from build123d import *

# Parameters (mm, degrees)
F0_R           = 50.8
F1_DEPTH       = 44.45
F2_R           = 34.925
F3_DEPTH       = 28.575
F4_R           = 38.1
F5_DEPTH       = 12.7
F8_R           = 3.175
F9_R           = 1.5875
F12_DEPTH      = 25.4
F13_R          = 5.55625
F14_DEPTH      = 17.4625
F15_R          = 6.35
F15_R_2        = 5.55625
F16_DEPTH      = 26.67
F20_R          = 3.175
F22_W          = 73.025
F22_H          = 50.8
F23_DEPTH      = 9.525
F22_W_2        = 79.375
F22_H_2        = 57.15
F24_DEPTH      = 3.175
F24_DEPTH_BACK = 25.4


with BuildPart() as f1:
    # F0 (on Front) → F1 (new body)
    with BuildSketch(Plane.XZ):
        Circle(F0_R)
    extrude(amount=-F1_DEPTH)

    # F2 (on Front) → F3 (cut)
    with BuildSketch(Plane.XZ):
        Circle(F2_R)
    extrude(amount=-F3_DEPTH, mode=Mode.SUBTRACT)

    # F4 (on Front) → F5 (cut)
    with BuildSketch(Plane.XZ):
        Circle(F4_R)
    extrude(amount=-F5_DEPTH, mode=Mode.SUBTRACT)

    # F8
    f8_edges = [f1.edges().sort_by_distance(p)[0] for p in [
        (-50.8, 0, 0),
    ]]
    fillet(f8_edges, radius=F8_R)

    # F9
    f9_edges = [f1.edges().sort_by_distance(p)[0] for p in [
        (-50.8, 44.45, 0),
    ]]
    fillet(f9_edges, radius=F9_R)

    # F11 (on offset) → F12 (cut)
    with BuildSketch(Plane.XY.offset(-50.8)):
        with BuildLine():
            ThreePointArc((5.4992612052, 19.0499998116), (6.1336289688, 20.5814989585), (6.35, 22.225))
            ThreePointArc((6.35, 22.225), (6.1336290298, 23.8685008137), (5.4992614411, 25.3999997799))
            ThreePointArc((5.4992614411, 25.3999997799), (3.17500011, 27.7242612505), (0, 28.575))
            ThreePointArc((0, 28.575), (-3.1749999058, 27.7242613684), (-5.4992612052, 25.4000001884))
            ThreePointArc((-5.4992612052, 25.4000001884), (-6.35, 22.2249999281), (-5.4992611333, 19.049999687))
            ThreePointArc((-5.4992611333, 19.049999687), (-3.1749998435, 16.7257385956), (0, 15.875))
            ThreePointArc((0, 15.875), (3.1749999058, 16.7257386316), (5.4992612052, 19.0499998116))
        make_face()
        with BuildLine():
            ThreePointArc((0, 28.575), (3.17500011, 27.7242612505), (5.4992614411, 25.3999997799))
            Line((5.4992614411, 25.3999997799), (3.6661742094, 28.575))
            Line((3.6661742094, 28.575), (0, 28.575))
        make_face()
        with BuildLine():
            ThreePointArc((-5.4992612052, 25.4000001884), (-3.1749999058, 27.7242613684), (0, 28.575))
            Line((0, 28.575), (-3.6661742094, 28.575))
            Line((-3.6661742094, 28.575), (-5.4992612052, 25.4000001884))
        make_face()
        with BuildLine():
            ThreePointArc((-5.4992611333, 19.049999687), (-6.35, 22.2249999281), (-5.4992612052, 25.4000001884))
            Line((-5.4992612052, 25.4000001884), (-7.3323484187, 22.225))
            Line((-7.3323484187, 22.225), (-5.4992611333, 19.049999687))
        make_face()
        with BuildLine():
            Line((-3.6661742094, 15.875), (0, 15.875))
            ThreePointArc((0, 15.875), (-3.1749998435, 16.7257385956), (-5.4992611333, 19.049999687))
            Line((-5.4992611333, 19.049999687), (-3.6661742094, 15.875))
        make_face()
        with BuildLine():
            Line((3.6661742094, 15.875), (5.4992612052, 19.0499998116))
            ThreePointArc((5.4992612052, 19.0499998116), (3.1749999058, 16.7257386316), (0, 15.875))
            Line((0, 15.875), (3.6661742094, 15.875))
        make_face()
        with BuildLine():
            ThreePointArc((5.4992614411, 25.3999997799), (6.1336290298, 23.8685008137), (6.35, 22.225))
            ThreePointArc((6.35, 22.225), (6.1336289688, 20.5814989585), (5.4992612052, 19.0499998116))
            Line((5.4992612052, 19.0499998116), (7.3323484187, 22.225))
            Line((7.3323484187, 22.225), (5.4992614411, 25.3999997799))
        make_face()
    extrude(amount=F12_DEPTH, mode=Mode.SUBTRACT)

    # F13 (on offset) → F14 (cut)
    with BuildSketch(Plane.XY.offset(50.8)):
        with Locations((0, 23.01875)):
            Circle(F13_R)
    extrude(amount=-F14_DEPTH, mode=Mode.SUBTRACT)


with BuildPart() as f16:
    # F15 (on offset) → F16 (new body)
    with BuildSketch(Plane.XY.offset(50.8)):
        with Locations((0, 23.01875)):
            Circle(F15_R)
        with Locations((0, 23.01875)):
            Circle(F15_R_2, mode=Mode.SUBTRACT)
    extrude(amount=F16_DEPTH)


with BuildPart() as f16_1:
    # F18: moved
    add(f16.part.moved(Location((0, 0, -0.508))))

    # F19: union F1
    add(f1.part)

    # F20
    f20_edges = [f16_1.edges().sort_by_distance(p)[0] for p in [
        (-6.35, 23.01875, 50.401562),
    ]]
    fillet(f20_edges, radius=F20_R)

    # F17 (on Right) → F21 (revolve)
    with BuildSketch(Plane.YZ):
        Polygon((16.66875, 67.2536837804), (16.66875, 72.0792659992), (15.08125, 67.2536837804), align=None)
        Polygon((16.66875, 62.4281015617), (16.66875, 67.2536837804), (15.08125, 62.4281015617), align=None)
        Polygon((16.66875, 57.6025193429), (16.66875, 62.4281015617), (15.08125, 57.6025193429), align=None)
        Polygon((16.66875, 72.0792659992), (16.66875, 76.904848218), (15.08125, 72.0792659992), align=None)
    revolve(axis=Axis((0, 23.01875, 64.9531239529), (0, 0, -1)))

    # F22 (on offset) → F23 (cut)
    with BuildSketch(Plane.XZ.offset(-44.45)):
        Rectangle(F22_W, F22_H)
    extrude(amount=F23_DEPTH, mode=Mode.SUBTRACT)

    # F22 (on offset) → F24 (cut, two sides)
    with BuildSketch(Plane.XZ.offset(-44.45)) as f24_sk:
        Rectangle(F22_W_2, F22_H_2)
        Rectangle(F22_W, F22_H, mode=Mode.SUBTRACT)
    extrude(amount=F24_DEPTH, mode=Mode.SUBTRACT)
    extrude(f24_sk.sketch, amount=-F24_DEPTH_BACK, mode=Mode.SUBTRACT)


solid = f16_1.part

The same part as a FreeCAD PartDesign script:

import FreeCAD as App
import Part
import Sketcher
Q = App.Units.Quantity


def edges_at(feature, points):
    """Names of the edges that pass closest to the given points."""
    edges = feature.Shape.Edges
    near = lambda p: min(range(len(edges)), key=lambda i: edges[i].distToShape(Part.Vertex(*p))[0])
    return sorted({f"Edge{near(p) + 1}" for p in points})


def add_polygon(sketch, points):
    """Adds a closed chain of lines whose ends are joined by coincident constraints."""
    first, n = sketch.GeometryCount, len(points)
    for a, b in zip(points, points[1:] + points[:1]):
        sketch.addGeometry(Part.LineSegment(App.Vector(*a, 0), App.Vector(*b, 0)), False)
    for i in range(n):
        sketch.addConstraint(Sketcher.Constraint("Coincident", first + i, 2, first + (i + 1) % n, 1))

doc = App.newDocument("Part")
params = doc.addObject("Spreadsheet::Sheet", "Params")
for row, (alias, value) in enumerate([
    ("sketch1_diameter", "4 in"),
    ("pad1_length", "1.75 in"),
    ("sketch2_diameter", "2.75 in"),
    ("pocket1_length", "1.125 in"),
    ("sketch3_diameter", "3 in"),
    ("pocket2_length", "0.5 in"),
    ("fillet_radius", "0.125 in"),
    ("fillet2_radius", "0.0625 in"),
    ("pocket3_length", "1 in"),
    ("sketch5_diameter", "0.4375 in"),
    ("pocket4_length", "0.6875 in"),
    ("sketch6_diameter", "0.5 in"),
    ("sketch6_diameter2", "0.4375 in"),
    ("pad2_length", "1.05 in"),
    ("fillet3_radius", "0.125 in"),
    ("sketch7_length", "0.2 in"),
    ("sketch7_width", "0.0625 in"),
    ("revolution_angle", "360 deg"),
    ("sketch8_height", "2 in"),
    ("sketch8_width", "2.875 in"),
    ("pocket5_length", "0.375 in"),
    ("sketch9_height", "2 in"),
    ("sketch9_height2", "2.25 in"),
    ("sketch9_width", "3.125 in"),
    ("pocket6_length", "0.125 in"),
    ("pocket6_length2", "1 in"),
], start=1):
    params.set(f"A{row}", alias)
    params.set(f"B{row}", "=" + value)
    params.setAlias(f"B{row}", alias)

body = doc.addObject("PartDesign::Body", "Body")

sketch1 = body.newObject("Sketcher::SketchObject", "Sketch")
sketch1.AttachmentSupport = (doc.getObject("XZ_Plane"), [""])
sketch1.MapMode = "FlatFace"
sketch1.addGeometry(Part.Circle(App.Vector(0, 0, 0), App.Vector(0, 0, 1), 51), False)
sketch1.addConstraint(Sketcher.Constraint("Coincident", 0, 3, -1, 1))
sketch1.addConstraint(Sketcher.Constraint("Diameter", 0, Q("4 in")))
sketch1.setExpression("Constraints[1]", "Params.sketch1_diameter")
pad1 = body.newObject("PartDesign::Pad", "Pad")
pad1.Profile = sketch1
pad1.setExpression("Length", "Params.pad1_length")
pad1.Reversed = True

sketch2 = body.newObject("Sketcher::SketchObject", "Sketch001")
sketch2.AttachmentSupport = (doc.getObject("XZ_Plane"), [""])
sketch2.MapMode = "FlatFace"
sketch2.addGeometry(Part.Circle(App.Vector(0, 0, 0), App.Vector(0, 0, 1), 35), False)
sketch2.addConstraint(Sketcher.Constraint("Coincident", 0, 3, -1, 1))
sketch2.addConstraint(Sketcher.Constraint("Diameter", 0, Q("2.75 in")))
sketch2.setExpression("Constraints[1]", "Params.sketch2_diameter")
pocket1 = body.newObject("PartDesign::Pocket", "Pocket")
pocket1.Profile = sketch2
pocket1.setExpression("Length", "Params.pocket1_length")

sketch3 = body.newObject("Sketcher::SketchObject", "Sketch002")
sketch3.AttachmentSupport = (doc.getObject("XZ_Plane"), [""])
sketch3.MapMode = "FlatFace"
sketch3.addGeometry(Part.Circle(App.Vector(0, 0, 0), App.Vector(0, 0, 1), 38), False)
sketch3.addConstraint(Sketcher.Constraint("Coincident", 0, 3, -1, 1))
sketch3.addConstraint(Sketcher.Constraint("Diameter", 0, Q("3 in")))
sketch3.setExpression("Constraints[1]", "Params.sketch3_diameter")
pocket2 = body.newObject("PartDesign::Pocket", "Pocket001")
pocket2.Profile = sketch3
pocket2.setExpression("Length", "Params.pocket2_length")
doc.recompute()

fillet = body.newObject("PartDesign::Fillet", "Fillet")
fillet.Base = (pocket2, edges_at(pocket2, [(-50.8, 0, 0)]))
fillet.setExpression("Radius", "Params.fillet_radius")
doc.recompute()

fillet2 = body.newObject("PartDesign::Fillet", "Fillet001")
fillet2.Base = (fillet, edges_at(fillet, [(-50.8, 44.45, 0)]))
fillet2.setExpression("Radius", "Params.fillet2_radius")

sketch4 = body.newObject("Sketcher::SketchObject", "Sketch003")
sketch4.AttachmentSupport = (doc.getObject("XY_Plane"), [""])
sketch4.MapMode = "FlatFace"
sketch4.AttachmentOffset = App.Placement(App.Vector(0, 0, -2 * 25.4), App.Rotation())
add_polygon(sketch4, [(5.5, 25.4), (3.7, 28.6), (-3.7, 28.6), (-5.5, 25.4), (-7.3, 22.2), (-5.5, 19), (-3.7, 15.9), (3.7, 15.9), (5.5, 19), (7.3, 22.2)])
sketch4.addConstraint(Sketcher.Constraint("Horizontal", 1))
sketch4.addConstraint(Sketcher.Constraint("Horizontal", 6))
sketch4.addConstraint(Sketcher.Constraint("Symmetric", 4, 2, 7, 2, -2))
sketch4.addConstraint(Sketcher.Constraint("Symmetric", 3, 2, 8, 2, -2))
sketch4.addConstraint(Sketcher.Constraint("Symmetric", 2, 2, 9, 2, -2))
sketch4.addConstraint(Sketcher.Constraint("Parallel", 2, 3))
sketch4.addConstraint(Sketcher.Constraint("Parallel", 0, 4))
sketch4.addConstraint(Sketcher.Constraint("Parallel", 4, 5))
sketch4.addConstraint(Sketcher.Constraint("Parallel", 3, 7))
sketch4.addConstraint(Sketcher.Constraint("Parallel", 7, 8))
sketch4.addConstraint(Sketcher.Constraint("Vertical", 2, 2, 4, 2))
sketch4.addConstraint(Sketcher.Constraint("Vertical", 1, 2, 5, 2))
sketch4.addConstraint(Sketcher.Constraint("Equal", 2, 3))
sketch4.addConstraint(Sketcher.Constraint("DistanceY", -1, 1, 2, 2, Q("1 in")))
sketch4.addConstraint(Sketcher.Constraint("Angle", 0, Q("120 deg")))
sketch4.addConstraint(Sketcher.Constraint("DistanceY", 5, 2, 1, 2, Q("0.5 in")))
sketch4.addConstraint(Sketcher.Constraint("DistanceX", 1, 2, 1, 1, 7.332348))
pocket3 = body.newObject("PartDesign::Pocket", "Pocket002")
pocket3.Profile = sketch4
pocket3.setExpression("Length", "Params.pocket3_length")
pocket3.Reversed = True

sketch5 = body.newObject("Sketcher::SketchObject", "Sketch004")
sketch5.AttachmentSupport = (doc.getObject("XY_Plane"), [""])
sketch5.MapMode = "FlatFace"
sketch5.AttachmentOffset = App.Placement(App.Vector(0, 0, 2 * 25.4), App.Rotation())
sketch5.addGeometry(Part.Circle(App.Vector(0, 23, 0), App.Vector(0, 0, 1), 6), False)
sketch5.addConstraint(Sketcher.Constraint("PointOnObject", 0, 3, -2))
sketch5.addConstraint(Sketcher.Constraint("Diameter", 0, Q("0.4375 in")))
sketch5.addConstraint(Sketcher.Constraint("DistanceY", -1, 1, 0, 3, Q("0.90625 in")))
sketch5.setExpression("Constraints[1]", "Params.sketch5_diameter")
pocket4 = body.newObject("PartDesign::Pocket", "Pocket003")
pocket4.Profile = sketch5
pocket4.setExpression("Length", "Params.pocket4_length")
body2 = doc.addObject("PartDesign::Body", "Body001")

sketch6 = body2.newObject("Sketcher::SketchObject", "Sketch005")
sketch6.AttachmentSupport = (doc.getObject("XY_Plane001"), [""])
sketch6.MapMode = "FlatFace"
sketch6.AttachmentOffset = App.Placement(App.Vector(0, 0, 2 * 25.4), App.Rotation())
sketch6.addGeometry(Part.Circle(App.Vector(0, 23, 0), App.Vector(0, 0, 1), 6), False)
sketch6.addGeometry(Part.Circle(App.Vector(0, 23, 0), App.Vector(0, 0, 1), 6), False)
sketch6.addConstraint(Sketcher.Constraint("Coincident", 1, 3, 0, 3))
sketch6.addConstraint(Sketcher.Constraint("PointOnObject", 0, 3, -2))
sketch6.addConstraint(Sketcher.Constraint("Diameter", 0, Q("0.5 in")))
sketch6.addConstraint(Sketcher.Constraint("Diameter", 1, Q("0.4375 in")))
sketch6.addConstraint(Sketcher.Constraint("DistanceY", -1, 1, 0, 3, Q("0.90625 in")))
sketch6.setExpression("Constraints[2]", "Params.sketch6_diameter")
sketch6.setExpression("Constraints[3]", "Params.sketch6_diameter2")
pad2 = body2.newObject("PartDesign::Pad", "Pad001")
pad2.Profile = sketch6
pad2.setExpression("Length", "Params.pad2_length")
body3 = doc.addObject("PartDesign::Body", "Body002")
doc.recompute()

body2.Placement = App.Placement(App.Vector(0, 0, -0.508), App.Rotation(App.Vector(0, 0, 1), 0))
boolean = body3.newObject("PartDesign::Boolean", "Boolean")
boolean.Type = "Fuse"
boolean.addObjects([body2])
doc.recompute()

boolean2 = body3.newObject("PartDesign::Boolean", "Boolean001")
boolean2.Type = "Fuse"
boolean2.addObjects([body])
doc.recompute()

fillet3 = body3.newObject("PartDesign::Fillet", "Fillet002")
fillet3.Base = (boolean2, edges_at(boolean2, [(-6.35, 23.019, 50.402)]))
fillet3.setExpression("Radius", "Params.fillet3_radius")

sketch7 = body3.newObject("Sketcher::SketchObject", "Sketch006")
sketch7.AttachmentSupport = (doc.getObject("YZ_Plane002"), [""])
sketch7.MapMode = "FlatFace"
add_polygon(sketch7, [(16.7, 67.3), (16.7, 72.1), (15.1, 67.3)])
add_polygon(sketch7, [(16.7, 62.4), (16.7, 67.3), (15.1, 62.4)])
add_polygon(sketch7, [(16.7, 57.6), (16.7, 62.4), (15.1, 57.6)])
add_polygon(sketch7, [(16.7, 72.1), (16.7, 76.9), (15.1, 72.1)])
sketch7.addGeometry(Part.LineSegment(App.Vector(23, 76.9, 0), App.Vector(23, 57.6, 0)), True)
sketch7.addConstraint(Sketcher.Constraint("Vertical", 0))
sketch7.addConstraint(Sketcher.Constraint("Horizontal", 2))
sketch7.addConstraint(Sketcher.Constraint("Vertical", 3))
sketch7.addConstraint(Sketcher.Constraint("Horizontal", 5))
sketch7.addConstraint(Sketcher.Constraint("Vertical", 6))
sketch7.addConstraint(Sketcher.Constraint("Horizontal", 8))
sketch7.addConstraint(Sketcher.Constraint("Vertical", 9))
sketch7.addConstraint(Sketcher.Constraint("Horizontal", 11))
sketch7.addConstraint(Sketcher.Constraint("Vertical", 12))
sketch7.addConstraint(Sketcher.Constraint("Coincident", 3, 2, 2, 2))
sketch7.addConstraint(Sketcher.Constraint("Coincident", 6, 2, 5, 2))
sketch7.addConstraint(Sketcher.Constraint("Coincident", 11, 2, 0, 2))
sketch7.addConstraint(Sketcher.Constraint("Parallel", 1, 4))
sketch7.addConstraint(Sketcher.Constraint("Parallel", 4, 7))
sketch7.addConstraint(Sketcher.Constraint("Parallel", 7, 10))
sketch7.addConstraint(Sketcher.Constraint("Horizontal", 9, 2, 12, 1))
sketch7.addConstraint(Sketcher.Constraint("Horizontal", 8, 2, 12, 2))
sketch7.addConstraint(Sketcher.Constraint("Vertical", 1, 2, 4, 2))
sketch7.addConstraint(Sketcher.Constraint("Vertical", 4, 2, 7, 2))
sketch7.addConstraint(Sketcher.Constraint("Vertical", 7, 2, 10, 2))
sketch7.addConstraint(Sketcher.Constraint("Distance", 1, Q("0.2 in")))
sketch7.addConstraint(Sketcher.Constraint("DistanceX", 2, 1, 2, 2, Q("0.0625 in")))
sketch7.addConstraint(Sketcher.Constraint("DistanceX", 9, 2, 12, 1, Q("0.25 in")))
sketch7.addConstraint(Sketcher.Constraint("DistanceX", -1, 1, 0, 2, Q("0.65625 in")))
sketch7.addConstraint(Sketcher.Constraint("DistanceY", -1, 1, 4, 2, 62.428102))
sketch7.setExpression("Constraints[32]", "Params.sketch7_length")
sketch7.setExpression("Constraints[33]", "Params.sketch7_width")
revolution = body3.newObject("PartDesign::Revolution", "Revolution")
revolution.Profile = sketch7
revolution.ReferenceAxis = (sketch7, ["Axis0"])
revolution.setExpression("Angle", "Params.revolution_angle")

sketch8 = body3.newObject("Sketcher::SketchObject", "Sketch007")
sketch8.AttachmentSupport = (doc.getObject("XZ_Plane002"), [""])
sketch8.MapMode = "FlatFace"
sketch8.AttachmentOffset = App.Placement(App.Vector(0, 0, -1.75 * 25.4), App.Rotation())
add_polygon(sketch8, [(-37, 25), (-37, -25), (37, -25), (37, 25)])
sketch8.addConstraint(Sketcher.Constraint("Vertical", 0))
sketch8.addConstraint(Sketcher.Constraint("Horizontal", 1))
sketch8.addConstraint(Sketcher.Constraint("Vertical", 2))
sketch8.addConstraint(Sketcher.Constraint("Horizontal", 3))
sketch8.addConstraint(Sketcher.Constraint("Symmetric", 0, 2, 2, 2, -1, 1))
sketch8.addConstraint(Sketcher.Constraint("DistanceY", 0, 2, 0, 1, Q("2 in")))
sketch8.addConstraint(Sketcher.Constraint("DistanceX", 1, 1, 1, 2, Q("2.875 in")))
sketch8.setExpression("Constraints[9]", "Params.sketch8_height")
sketch8.setExpression("Constraints[10]", "Params.sketch8_width")
pocket5 = body3.newObject("PartDesign::Pocket", "Pocket004")
pocket5.Profile = sketch8
pocket5.setExpression("Length", "Params.pocket5_length")
pocket5.Reversed = True

sketch9 = body3.newObject("Sketcher::SketchObject", "Sketch008")
sketch9.AttachmentSupport = (doc.getObject("XZ_Plane002"), [""])
sketch9.MapMode = "FlatFace"
sketch9.AttachmentOffset = App.Placement(App.Vector(0, 0, -1.75 * 25.4), App.Rotation())
add_polygon(sketch9, [(-40, 29), (-40, -29), (40, -29), (40, 29)])
add_polygon(sketch9, [(37, -25), (-37, -25), (-37, 25), (37, 25)])
sketch9.addConstraint(Sketcher.Constraint("Vertical", 0))
sketch9.addConstraint(Sketcher.Constraint("Horizontal", 1))
sketch9.addConstraint(Sketcher.Constraint("Vertical", 2))
sketch9.addConstraint(Sketcher.Constraint("Horizontal", 3))
sketch9.addConstraint(Sketcher.Constraint("Horizontal", 4))
sketch9.addConstraint(Sketcher.Constraint("Vertical", 5))
sketch9.addConstraint(Sketcher.Constraint("Horizontal", 6))
sketch9.addConstraint(Sketcher.Constraint("Vertical", 7))
sketch9.addConstraint(Sketcher.Constraint("Symmetric", 0, 2, 2, 2, -1, 1))
sketch9.addConstraint(Sketcher.Constraint("Symmetric", 4, 2, 6, 2, -1, 1))
sketch9.addConstraint(Sketcher.Constraint("DistanceY", 5, 1, 5, 2, Q("2 in")))
sketch9.addConstraint(Sketcher.Constraint("DistanceX", 4, 2, 1, 2, Q("3 in")))
sketch9.addConstraint(Sketcher.Constraint("DistanceY", 0, 2, 0, 1, Q("2.25 in")))
sketch9.addConstraint(Sketcher.Constraint("DistanceX", 1, 1, 1, 2, Q("3.125 in")))
sketch9.setExpression("Constraints[18]", "Params.sketch9_height")
sketch9.setExpression("Constraints[20]", "Params.sketch9_height2")
sketch9.setExpression("Constraints[21]", "Params.sketch9_width")
pocket6 = body3.newObject("PartDesign::Pocket", "Pocket005")
pocket6.Profile = sketch9
pocket6.Type = "TwoLengths"
pocket6.setExpression("Length", "Params.pocket6_length")
pocket6.setExpression("Length2", "Params.pocket6_length2")
pocket6.Reversed = True

doc.recompute()
